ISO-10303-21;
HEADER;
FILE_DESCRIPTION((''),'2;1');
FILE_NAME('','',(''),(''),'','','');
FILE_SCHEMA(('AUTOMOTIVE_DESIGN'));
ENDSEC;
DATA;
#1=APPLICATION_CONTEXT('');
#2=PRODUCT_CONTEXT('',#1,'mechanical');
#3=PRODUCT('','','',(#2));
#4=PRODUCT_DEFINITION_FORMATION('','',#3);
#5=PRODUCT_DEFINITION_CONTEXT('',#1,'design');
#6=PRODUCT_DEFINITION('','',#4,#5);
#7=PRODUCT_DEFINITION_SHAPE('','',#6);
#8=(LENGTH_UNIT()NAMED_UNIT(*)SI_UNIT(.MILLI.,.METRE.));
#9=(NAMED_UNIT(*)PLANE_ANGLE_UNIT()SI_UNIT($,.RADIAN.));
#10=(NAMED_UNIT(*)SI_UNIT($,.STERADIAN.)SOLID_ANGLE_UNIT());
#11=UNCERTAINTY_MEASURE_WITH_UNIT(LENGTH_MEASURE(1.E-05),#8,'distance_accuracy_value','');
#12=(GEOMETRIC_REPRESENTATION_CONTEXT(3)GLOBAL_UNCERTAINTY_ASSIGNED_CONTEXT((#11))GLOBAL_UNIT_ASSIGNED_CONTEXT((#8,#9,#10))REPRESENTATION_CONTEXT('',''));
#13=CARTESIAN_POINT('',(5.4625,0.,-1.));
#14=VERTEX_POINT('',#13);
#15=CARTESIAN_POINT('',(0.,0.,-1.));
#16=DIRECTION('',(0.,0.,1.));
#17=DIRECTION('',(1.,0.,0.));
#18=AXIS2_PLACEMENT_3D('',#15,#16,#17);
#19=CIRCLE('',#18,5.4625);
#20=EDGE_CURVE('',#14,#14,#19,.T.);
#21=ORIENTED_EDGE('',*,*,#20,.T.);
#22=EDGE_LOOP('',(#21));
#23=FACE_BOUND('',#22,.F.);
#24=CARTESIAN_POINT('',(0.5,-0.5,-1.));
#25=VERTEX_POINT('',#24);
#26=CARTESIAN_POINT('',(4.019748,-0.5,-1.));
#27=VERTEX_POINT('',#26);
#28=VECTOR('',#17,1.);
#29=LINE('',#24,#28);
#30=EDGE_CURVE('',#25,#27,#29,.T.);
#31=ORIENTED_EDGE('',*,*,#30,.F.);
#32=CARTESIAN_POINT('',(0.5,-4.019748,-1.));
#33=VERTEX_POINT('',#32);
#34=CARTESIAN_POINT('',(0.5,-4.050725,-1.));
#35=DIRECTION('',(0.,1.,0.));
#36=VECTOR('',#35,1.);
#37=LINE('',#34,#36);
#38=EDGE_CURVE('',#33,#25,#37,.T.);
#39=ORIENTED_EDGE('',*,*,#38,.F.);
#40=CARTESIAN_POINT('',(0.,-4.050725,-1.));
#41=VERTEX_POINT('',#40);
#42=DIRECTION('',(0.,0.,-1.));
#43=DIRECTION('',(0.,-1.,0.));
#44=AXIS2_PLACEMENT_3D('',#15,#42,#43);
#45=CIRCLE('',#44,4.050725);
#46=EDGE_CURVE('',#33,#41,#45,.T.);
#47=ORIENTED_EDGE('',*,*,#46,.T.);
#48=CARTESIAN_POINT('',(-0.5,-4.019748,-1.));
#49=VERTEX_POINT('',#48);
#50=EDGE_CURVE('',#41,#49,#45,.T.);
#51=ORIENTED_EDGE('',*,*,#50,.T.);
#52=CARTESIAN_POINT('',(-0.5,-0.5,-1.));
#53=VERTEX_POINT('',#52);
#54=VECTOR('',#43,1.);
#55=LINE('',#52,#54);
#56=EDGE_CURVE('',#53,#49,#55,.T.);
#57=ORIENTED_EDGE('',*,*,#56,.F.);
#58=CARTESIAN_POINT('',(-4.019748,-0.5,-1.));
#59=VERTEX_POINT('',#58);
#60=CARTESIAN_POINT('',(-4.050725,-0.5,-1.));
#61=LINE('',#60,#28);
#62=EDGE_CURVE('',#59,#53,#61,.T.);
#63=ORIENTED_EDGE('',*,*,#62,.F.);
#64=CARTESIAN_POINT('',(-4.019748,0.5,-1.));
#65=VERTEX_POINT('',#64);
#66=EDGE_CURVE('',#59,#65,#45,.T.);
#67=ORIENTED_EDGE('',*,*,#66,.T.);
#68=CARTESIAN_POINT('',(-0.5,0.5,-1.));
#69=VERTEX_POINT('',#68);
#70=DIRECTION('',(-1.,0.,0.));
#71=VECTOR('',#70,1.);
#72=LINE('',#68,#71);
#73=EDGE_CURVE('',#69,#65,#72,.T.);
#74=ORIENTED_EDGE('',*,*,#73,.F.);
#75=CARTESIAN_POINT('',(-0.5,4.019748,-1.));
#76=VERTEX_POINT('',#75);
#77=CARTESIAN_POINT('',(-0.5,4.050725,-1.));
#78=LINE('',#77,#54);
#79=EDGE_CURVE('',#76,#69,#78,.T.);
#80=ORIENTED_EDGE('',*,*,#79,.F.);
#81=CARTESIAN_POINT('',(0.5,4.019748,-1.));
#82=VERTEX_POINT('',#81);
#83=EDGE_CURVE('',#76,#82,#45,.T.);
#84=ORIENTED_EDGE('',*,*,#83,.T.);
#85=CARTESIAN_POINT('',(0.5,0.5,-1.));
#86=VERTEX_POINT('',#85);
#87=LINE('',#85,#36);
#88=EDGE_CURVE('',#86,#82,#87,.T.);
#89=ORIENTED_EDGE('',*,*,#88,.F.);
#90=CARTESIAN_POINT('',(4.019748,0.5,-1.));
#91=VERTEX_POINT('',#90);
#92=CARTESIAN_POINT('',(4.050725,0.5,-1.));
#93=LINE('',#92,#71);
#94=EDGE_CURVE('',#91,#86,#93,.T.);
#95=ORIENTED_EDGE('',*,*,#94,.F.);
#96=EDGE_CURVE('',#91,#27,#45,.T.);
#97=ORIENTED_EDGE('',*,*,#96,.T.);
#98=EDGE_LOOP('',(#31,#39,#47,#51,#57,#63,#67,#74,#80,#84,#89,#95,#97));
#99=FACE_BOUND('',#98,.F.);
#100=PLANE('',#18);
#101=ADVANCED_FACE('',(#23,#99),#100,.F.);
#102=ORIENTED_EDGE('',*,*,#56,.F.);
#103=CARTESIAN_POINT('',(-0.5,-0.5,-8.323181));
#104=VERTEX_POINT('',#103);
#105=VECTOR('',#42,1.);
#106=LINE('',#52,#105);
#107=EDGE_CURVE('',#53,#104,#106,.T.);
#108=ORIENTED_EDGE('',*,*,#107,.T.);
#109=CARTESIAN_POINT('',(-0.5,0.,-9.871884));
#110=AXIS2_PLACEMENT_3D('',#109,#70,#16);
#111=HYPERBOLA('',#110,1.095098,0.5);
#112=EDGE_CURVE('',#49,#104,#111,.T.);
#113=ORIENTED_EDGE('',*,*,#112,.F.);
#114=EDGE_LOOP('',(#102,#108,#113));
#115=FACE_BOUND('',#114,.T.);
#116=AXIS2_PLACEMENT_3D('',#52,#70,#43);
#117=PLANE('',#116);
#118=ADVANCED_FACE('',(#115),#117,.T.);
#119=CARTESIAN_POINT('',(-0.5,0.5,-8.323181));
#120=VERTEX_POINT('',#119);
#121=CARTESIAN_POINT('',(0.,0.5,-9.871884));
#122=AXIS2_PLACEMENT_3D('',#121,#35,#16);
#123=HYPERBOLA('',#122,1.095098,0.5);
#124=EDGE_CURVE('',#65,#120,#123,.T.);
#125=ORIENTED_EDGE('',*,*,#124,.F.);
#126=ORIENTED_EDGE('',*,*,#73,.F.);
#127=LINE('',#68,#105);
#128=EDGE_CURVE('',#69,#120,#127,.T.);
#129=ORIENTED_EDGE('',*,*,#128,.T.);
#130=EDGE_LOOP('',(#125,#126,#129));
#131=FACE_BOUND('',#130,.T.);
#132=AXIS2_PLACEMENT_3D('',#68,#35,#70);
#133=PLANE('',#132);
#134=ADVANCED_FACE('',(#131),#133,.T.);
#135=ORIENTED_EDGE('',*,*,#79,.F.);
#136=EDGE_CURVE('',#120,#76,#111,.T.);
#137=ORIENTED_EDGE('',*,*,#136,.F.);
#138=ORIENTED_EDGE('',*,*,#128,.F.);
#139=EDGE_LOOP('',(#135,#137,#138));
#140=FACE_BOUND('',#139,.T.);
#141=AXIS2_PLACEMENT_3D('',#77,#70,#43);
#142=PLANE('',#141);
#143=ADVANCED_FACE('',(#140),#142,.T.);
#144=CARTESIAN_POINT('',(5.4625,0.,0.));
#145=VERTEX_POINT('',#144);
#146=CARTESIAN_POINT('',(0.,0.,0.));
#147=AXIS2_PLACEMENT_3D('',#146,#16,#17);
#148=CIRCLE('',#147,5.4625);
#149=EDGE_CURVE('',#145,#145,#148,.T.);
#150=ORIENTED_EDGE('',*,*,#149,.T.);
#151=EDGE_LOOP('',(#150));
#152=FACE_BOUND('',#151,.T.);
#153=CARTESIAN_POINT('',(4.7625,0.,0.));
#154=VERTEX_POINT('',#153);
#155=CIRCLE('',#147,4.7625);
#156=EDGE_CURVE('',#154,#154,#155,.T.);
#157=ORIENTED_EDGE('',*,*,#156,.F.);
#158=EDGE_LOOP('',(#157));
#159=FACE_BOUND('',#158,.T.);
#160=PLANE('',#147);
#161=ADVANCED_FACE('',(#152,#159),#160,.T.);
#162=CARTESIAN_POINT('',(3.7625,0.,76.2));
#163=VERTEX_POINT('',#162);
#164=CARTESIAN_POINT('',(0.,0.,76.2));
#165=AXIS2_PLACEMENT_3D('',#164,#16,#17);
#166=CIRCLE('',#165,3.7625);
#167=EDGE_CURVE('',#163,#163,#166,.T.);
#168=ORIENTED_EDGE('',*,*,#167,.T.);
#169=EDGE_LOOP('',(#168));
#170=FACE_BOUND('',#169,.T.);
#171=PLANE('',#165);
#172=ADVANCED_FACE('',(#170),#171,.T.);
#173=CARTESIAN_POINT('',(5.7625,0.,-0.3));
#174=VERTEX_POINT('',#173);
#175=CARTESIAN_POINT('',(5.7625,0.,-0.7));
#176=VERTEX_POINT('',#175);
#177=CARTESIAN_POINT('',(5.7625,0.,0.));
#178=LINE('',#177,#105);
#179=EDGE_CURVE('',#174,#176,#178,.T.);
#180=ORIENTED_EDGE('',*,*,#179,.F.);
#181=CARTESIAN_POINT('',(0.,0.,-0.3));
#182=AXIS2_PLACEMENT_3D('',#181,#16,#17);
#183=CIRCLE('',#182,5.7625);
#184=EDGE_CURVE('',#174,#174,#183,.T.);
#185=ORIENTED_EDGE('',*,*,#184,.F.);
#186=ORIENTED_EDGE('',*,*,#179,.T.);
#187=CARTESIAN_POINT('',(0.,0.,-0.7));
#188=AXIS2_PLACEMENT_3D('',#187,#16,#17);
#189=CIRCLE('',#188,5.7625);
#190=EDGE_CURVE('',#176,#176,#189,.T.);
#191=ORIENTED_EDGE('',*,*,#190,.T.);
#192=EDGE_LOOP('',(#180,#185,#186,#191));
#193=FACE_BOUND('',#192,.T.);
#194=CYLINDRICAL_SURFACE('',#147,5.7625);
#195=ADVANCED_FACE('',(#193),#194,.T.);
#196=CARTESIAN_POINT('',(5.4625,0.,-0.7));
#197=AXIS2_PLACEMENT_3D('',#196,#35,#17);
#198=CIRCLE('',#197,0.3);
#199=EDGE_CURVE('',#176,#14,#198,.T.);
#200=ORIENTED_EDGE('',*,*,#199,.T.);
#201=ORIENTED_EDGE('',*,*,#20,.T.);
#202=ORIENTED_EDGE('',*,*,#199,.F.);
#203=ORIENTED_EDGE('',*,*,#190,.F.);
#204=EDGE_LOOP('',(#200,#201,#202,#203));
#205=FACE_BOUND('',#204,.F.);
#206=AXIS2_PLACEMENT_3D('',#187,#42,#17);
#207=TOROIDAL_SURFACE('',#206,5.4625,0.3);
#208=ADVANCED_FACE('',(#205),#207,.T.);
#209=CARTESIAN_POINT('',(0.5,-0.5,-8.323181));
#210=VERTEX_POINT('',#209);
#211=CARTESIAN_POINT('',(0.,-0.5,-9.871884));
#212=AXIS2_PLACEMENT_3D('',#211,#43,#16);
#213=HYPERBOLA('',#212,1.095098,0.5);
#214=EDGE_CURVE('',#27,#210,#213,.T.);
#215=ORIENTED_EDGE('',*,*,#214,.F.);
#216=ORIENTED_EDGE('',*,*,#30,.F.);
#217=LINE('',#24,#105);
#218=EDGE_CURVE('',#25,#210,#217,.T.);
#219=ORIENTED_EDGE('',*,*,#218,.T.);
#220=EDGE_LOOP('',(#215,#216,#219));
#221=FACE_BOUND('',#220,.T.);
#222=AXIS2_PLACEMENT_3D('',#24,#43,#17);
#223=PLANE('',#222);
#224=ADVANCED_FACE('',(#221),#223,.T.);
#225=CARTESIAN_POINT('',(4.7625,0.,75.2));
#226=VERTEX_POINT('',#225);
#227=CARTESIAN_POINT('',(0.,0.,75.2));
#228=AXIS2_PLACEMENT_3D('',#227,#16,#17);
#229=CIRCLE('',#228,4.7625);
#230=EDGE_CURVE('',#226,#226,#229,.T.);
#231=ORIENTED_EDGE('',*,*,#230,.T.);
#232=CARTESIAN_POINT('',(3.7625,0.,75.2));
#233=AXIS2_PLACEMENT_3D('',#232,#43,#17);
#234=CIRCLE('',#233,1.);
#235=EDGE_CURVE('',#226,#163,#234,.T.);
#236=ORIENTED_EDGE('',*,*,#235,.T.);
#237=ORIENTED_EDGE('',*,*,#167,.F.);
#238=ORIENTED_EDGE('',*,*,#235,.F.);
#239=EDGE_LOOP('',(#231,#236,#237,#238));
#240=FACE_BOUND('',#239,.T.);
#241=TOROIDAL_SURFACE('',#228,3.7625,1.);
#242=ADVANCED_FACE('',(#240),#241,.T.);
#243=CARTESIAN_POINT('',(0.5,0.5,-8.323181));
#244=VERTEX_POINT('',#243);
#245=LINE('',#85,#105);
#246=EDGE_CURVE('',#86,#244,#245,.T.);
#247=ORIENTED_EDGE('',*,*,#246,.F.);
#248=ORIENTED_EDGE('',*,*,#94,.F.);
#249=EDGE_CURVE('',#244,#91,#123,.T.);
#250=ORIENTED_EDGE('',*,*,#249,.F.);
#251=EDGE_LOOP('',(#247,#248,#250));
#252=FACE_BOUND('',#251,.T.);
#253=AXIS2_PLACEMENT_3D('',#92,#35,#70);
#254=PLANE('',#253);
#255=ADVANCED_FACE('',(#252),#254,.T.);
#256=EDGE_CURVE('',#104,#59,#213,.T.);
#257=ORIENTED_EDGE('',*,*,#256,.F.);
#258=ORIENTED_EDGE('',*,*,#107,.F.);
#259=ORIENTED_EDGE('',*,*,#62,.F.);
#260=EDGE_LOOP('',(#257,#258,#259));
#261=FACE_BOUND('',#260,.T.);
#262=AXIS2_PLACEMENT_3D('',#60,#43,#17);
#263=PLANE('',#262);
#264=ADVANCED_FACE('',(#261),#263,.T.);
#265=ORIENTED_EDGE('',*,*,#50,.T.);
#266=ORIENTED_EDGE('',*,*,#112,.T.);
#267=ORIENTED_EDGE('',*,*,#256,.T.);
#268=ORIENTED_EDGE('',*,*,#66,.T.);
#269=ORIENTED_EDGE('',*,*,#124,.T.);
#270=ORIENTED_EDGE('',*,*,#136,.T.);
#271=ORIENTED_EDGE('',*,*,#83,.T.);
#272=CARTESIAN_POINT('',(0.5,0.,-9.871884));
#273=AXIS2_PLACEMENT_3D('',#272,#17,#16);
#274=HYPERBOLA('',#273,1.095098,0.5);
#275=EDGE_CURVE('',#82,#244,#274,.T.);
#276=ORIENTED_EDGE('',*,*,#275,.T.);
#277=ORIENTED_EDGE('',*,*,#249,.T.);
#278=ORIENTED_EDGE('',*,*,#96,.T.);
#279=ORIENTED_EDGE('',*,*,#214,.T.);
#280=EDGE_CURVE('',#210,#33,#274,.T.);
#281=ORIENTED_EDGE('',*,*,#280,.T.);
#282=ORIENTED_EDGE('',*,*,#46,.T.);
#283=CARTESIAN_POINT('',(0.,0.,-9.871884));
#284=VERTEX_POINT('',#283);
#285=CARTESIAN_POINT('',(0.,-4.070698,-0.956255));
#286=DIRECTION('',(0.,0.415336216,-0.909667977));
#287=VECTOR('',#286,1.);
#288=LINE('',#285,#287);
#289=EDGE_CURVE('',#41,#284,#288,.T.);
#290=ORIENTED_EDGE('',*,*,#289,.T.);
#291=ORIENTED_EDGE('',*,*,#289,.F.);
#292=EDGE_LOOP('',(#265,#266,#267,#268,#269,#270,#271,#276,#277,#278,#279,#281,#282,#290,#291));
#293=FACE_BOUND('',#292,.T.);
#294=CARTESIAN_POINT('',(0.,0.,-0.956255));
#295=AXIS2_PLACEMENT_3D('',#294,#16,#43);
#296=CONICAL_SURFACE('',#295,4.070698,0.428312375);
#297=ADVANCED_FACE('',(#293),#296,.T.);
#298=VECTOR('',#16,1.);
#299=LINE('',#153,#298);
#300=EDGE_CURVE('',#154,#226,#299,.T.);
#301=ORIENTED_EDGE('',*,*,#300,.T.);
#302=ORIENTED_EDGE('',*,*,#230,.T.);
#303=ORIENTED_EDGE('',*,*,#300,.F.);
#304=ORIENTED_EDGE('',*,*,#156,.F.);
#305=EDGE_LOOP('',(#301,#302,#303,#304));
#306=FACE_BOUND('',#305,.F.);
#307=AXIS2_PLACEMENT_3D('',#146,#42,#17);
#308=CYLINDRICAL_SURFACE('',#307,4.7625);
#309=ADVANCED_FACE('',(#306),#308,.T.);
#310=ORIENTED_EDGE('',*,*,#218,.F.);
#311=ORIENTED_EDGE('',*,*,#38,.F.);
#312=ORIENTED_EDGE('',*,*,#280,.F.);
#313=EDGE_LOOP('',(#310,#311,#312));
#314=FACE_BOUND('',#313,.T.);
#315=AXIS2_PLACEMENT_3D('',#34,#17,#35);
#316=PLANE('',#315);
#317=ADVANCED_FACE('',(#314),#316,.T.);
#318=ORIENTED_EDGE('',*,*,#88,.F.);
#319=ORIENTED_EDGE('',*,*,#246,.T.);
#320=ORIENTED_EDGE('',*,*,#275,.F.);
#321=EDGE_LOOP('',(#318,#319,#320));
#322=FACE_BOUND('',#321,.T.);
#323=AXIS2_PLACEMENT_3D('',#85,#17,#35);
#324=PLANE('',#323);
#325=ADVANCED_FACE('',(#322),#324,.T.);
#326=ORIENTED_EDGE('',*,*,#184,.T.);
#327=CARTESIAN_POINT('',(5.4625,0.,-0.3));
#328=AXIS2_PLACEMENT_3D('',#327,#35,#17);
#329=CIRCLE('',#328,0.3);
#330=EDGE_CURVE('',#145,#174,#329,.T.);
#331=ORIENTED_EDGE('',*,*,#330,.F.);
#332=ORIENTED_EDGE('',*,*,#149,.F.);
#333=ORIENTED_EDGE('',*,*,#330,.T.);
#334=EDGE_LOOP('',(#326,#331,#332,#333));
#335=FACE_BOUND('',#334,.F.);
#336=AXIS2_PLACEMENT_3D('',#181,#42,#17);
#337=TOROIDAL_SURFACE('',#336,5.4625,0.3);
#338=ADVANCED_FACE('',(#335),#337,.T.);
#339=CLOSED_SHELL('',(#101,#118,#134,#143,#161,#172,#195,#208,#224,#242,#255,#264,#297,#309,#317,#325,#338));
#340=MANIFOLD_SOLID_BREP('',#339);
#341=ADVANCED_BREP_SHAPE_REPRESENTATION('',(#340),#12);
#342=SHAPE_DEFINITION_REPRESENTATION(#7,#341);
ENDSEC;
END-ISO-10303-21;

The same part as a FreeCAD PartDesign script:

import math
import FreeCAD as App
import Part
import Sketcher


def edges_at(feature, points):
    """Names of the edges that pass closest to the given points."""
    edges = feature.Shape.Edges
    near = lambda p: min(range(len(edges)), key=lambda i: edges[i].distToShape(Part.Vertex(*p))[0])
    return sorted({f"Edge{near(p) + 1}" for p in points})

doc = App.newDocument("Part")
body = doc.addObject("PartDesign::Body", "Body")

sketch1 = doc.addObject("Sketcher::SketchObject", "Sketch")
body.addObject(sketch1)
sketch1.AttachmentSupport = (doc.XY_Plane, [""])
sketch1.MapMode = "FlatFace"
sketch1.addGeometry(Part.Circle(App.Vector(0, 0, 0), App.Vector(0, 0, 1), 4.8), False)
sketch1.addConstraint([
    Sketcher.Constraint("Coincident", 0, 3, -1, 1),
    Sketcher.Constraint("Diameter", 0, 9.525),
])
pad1 = doc.addObject("PartDesign::Pad", "Pad")
body.addObject(pad1)
pad1.Profile = sketch1
pad1.Length = 76.2

sketch2 = doc.addObject("Sketcher::SketchObject", "Sketch001")
body.addObject(sketch2)
sketch2.AttachmentSupport = (doc.XY_Plane, [""])
sketch2.MapMode = "FlatFace"
sketch2.addGeometry(Part.Circle(App.Vector(0, 0, 0), App.Vector(0, 0, 1), 6), False)
sketch2.addConstraint([
    Sketcher.Constraint("Coincident", 0, 3, -1, 1),
    Sketcher.Constraint("Diameter", 0, 11.525),
])
pad2 = doc.addObject("PartDesign::Pad", "Pad001")
body.addObject(pad2)
pad2.Profile = sketch2
pad2.Length = 1
pad2.Reversed = True

sketch3 = doc.addObject("Sketcher::SketchObject", "Sketch002")
body.addObject(sketch3)
sketch3.AttachmentSupport = (doc.YZ_Plane, [""])
sketch3.MapMode = "FlatFace"
sketch3.addGeometry([
    Part.LineSegment(App.Vector(0, -9.9, 0), App.Vector(0, -1, 0)),
    Part.LineSegment(App.Vector(0, -1, 0), App.Vector(-4.1, -1, 0)),
    Part.LineSegment(App.Vector(-4.1, -1, 0), App.Vector(0, -9.9, 0)),
], False)
sketch3.addConstraint([
    Sketcher.Constraint("Coincident", 0, 2, 1, 1),
    Sketcher.Constraint("Coincident", 1, 2, 2, 1),
    Sketcher.Constraint("Coincident", 2, 2, 0, 1),
    Sketcher.Constraint("Vertical", 0),
    Sketcher.Constraint("Horizontal", 1),
    Sketcher.Constraint("PointOnObject", 0, 2, -2),
    Sketcher.Constraint("DistanceY", 0, 1, 0, 2, 8.915629),
    Sketcher.Constraint("Distance", 2, 9.80097),
    Sketcher.Constraint("DistanceY", 0, 2, -1, 1, 0.956255),
])
revolution = doc.addObject("PartDesign::Revolution", "Revolution")
body.addObject(revolution)
revolution.Profile = sketch3
revolution.ReferenceAxis = (sketch3, ["V_Axis"])
revolution.Angle = 360

sketch4 = doc.addObject("Sketcher::SketchObject", "Sketch003")
body.addObject(sketch4)
sketch4.AttachmentSupport = (doc.XY_Plane, [""])
sketch4.MapMode = "FlatFace"
sketch4.AttachmentOffset = App.Placement(App.Vector(0, 0, -1), App.Rotation())
sketch4.addGeometry([
    Part.LineSegment(App.Vector(0.5, 0.5, 0), App.Vector(0.5, 4.1, 0)),
    Part.ArcOfCircle(Part.Circle(App.Vector(0, 0, 0), App.Vector(0, 0, 1), 4.1), math.radians(7), math.radians(83)),
    Part.LineSegment(App.Vector(4.1, 0.5, 0), App.Vector(0.5, 0.5, 0)),
    Part.ArcOfCircle(Part.Circle(App.Vector(0, 0, 0), App.Vector(0, 0, 1), 4.1), math.radians(97), math.radians(173)),
    Part.LineSegment(App.Vector(-0.5, 4.1, 0), App.Vector(-0.5, 0.5, 0)),
    Part.LineSegment(App.Vector(-0.5, 0.5, 0), App.Vector(-4.1, 0.5, 0)),
    Part.ArcOfCircle(Part.Circle(App.Vector(0, 0, 0), App.Vector(0, 0, 1), 4.1), math.radians(-173), math.radians(-97)),
    Part.LineSegment(App.Vector(-4.1, -0.5, 0), App.Vector(-0.5, -0.5, 0)),
    Part.LineSegment(App.Vector(-0.5, -0.5, 0), App.Vector(-0.5, -4.1, 0)),
    Part.LineSegment(App.Vector(0.5, -4.1, 0), App.Vector(0.5, -0.5, 0)),
    Part.LineSegment(App.Vector(0.5, -0.5, 0), App.Vector(4.1, -0.5, 0)),
    Part.ArcOfCircle(Part.Circle(App.Vector(0, 0, 0), App.Vector(0, 0, 1), 4.1), math.radians(-83), math.radians(-7)),
], False)
sketch4.addConstraint([
    Sketcher.Constraint("Coincident", 0, 2, 1, 2),
    Sketcher.Constraint("Coincident", 1, 1, 2, 1),
    Sketcher.Constraint("Coincident", 2, 2, 0, 1),
    Sketcher.Constraint("Coincident", 3, 1, 4, 1),
    Sketcher.Constraint("Coincident", 4, 2, 5, 1),
    Sketcher.Constraint("Coincident", 5, 2, 3, 2),
    Sketcher.Constraint("Coincident", 6, 1, 7, 1),
    Sketcher.Constraint("Coincident", 7, 2, 8, 1),
    Sketcher.Constraint("Coincident", 8, 2, 6, 2),
    Sketcher.Constraint("Coincident", 9, 2, 10, 1),
    Sketcher.Constraint("Coincident", 10, 2, 11, 2),
    Sketcher.Constraint("Coincident", 11, 1, 9, 1),
    Sketcher.Constraint("Vertical", 0),
    Sketcher.Constraint("Horizontal", 2),
    Sketcher.Constraint("Vertical", 4),
    Sketcher.Constraint("Horizontal", 5),
    Sketcher.Constraint("Horizontal", 7),
    Sketcher.Constraint("Vertical", 8),
    Sketcher.Constraint("Vertical", 9),
    Sketcher.Constraint("Horizontal", 10),
    Sketcher.Constraint("Coincident", 1, 3, -1, 1),
    Sketcher.Constraint("Coincident", 3, 3, -1, 1),
    Sketcher.Constraint("Coincident", 6, 3, -1, 1),
    Sketcher.Constraint("Coincident", 11, 3, -1, 1),
    Sketcher.Constraint("Equal", 1, 3),
    Sketcher.Constraint("Equal", 3, 6),
    Sketcher.Constraint("Equal", 6, 11),
    Sketcher.Constraint("Symmetric", 2, 2, 7, 2, -1, 1),
    Sketcher.Constraint("Symmetric", 4, 2, 9, 2, -1, 1),
    Sketcher.Constraint("Symmetric", 2, 2, 4, 2, -2),
    Sketcher.Constraint("Equal", 10, 0),
    Sketcher.Constraint("DistanceX", 3, 1, 0, 2, 1.0),
    Sketcher.Constraint("Radius", 1, 4.081467),
])
pocket1 = doc.addObject("PartDesign::Pocket", "Pocket")
body.addObject(pocket1)
pocket1.Profile = sketch4
pocket1.Length = 25
doc.recompute()

fillet = doc.addObject("PartDesign::Fillet", "Fillet")
body.addObject(fillet)
fillet.Base = (pocket1, edges_at(pocket1, [(-4.763, 0, 76.2)]))
fillet.Radius = 1
doc.recompute()

fillet2 = doc.addObject("PartDesign::Fillet", "Fillet001")
body.addObject(fillet2)
fillet2.Base = (fillet, edges_at(fillet, [(-5.763, 0, 0), (-5.763, 0, -1)]))
fillet2.Radius = 0.3

doc.recompute()
